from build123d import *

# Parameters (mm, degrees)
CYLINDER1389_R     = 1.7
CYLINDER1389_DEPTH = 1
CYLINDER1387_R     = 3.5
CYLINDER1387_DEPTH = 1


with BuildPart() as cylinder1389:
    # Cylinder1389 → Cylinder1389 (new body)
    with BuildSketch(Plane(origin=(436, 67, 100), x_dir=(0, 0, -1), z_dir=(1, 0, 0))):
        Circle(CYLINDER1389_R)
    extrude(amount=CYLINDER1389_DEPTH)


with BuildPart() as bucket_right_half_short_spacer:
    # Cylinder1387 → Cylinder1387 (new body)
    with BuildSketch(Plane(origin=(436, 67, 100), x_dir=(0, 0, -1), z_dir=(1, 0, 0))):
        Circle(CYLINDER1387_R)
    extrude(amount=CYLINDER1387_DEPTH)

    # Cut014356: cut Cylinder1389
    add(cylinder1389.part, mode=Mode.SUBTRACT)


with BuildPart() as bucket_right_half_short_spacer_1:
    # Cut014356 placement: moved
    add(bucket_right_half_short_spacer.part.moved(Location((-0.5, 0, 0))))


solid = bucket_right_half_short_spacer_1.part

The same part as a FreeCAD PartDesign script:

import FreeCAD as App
import Part
import Sketcher
from FreeCAD import Vector
Q = App.Units.Quantity

doc = App.newDocument("Part")
body = doc.addObject("PartDesign::Body", "Body")

# Sketch on YZ plane
sketch1 = body.newObject("Sketcher::SketchObject", "Sketch")
sketch1.AttachmentSupport = (doc.getObject("YZ_Plane"), [""])
sketch1.MapMode = "FlatFace"
sketch1.AttachmentOffset = App.Placement(Vector(0, 0, 436), App.Rotation())
sketch1.addGeometry(Part.Circle(Vector(67, 100, 0), Vector(0, 0, 1), 1.7), False)
sketch1.addConstraint([
    Sketcher.Constraint("Diameter", 0, Q("3.4 mm")),
    Sketcher.Constraint("DistanceX", -1, 1, 0, 3, Q("67 mm")),
    Sketcher.Constraint("DistanceY", -1, 1, 0, 3, Q("100 mm")),
])
pad1 = body.newObject("PartDesign::Pad", "Pad")
pad1.Profile = sketch1
pad1.Length = 1
body2 = doc.addObject("PartDesign::Body", "Body001")

# Sketch on YZ plane
sketch2 = body2.newObject("Sketcher::SketchObject", "Sketch001")
sketch2.AttachmentSupport = (doc.getObject("YZ_Plane001"), [""])
sketch2.MapMode = "FlatFace"
sketch2.AttachmentOffset = App.Placement(Vector(0, 0, 436), App.Rotation())
sketch2.addGeometry(Part.Circle(Vector(67, 100, 0), Vector(0, 0, 1), 3.5), False)
sketch2.addConstraint([
    Sketcher.Constraint("Diameter", 0, Q("7 mm")),
    Sketcher.Constraint("DistanceX", -1, 1, 0, 3, Q("67 mm")),
    Sketcher.Constraint("DistanceY", -1, 1, 0, 3, Q("100 mm")),
])
pad2 = body2.newObject("PartDesign::Pad", "Pad001")
pad2.Profile = sketch2
pad2.Length = 1
doc.recompute()

boolean = body2.newObject("PartDesign::Boolean", "Boolean")
boolean.Type = "Cut"
boolean.addObjects([body])
body3 = doc.addObject("PartDesign::Body", "Body002")
doc.recompute()

body2.Placement = App.Placement(Vector(-0.5, 0, 0), App.Rotation(Vector(0, 0, 1), 0))
boolean2 = body3.newObject("PartDesign::Boolean", "Boolean001")
boolean2.Type = "Fuse"
boolean2.addObjects([body2])

doc.recompute()
